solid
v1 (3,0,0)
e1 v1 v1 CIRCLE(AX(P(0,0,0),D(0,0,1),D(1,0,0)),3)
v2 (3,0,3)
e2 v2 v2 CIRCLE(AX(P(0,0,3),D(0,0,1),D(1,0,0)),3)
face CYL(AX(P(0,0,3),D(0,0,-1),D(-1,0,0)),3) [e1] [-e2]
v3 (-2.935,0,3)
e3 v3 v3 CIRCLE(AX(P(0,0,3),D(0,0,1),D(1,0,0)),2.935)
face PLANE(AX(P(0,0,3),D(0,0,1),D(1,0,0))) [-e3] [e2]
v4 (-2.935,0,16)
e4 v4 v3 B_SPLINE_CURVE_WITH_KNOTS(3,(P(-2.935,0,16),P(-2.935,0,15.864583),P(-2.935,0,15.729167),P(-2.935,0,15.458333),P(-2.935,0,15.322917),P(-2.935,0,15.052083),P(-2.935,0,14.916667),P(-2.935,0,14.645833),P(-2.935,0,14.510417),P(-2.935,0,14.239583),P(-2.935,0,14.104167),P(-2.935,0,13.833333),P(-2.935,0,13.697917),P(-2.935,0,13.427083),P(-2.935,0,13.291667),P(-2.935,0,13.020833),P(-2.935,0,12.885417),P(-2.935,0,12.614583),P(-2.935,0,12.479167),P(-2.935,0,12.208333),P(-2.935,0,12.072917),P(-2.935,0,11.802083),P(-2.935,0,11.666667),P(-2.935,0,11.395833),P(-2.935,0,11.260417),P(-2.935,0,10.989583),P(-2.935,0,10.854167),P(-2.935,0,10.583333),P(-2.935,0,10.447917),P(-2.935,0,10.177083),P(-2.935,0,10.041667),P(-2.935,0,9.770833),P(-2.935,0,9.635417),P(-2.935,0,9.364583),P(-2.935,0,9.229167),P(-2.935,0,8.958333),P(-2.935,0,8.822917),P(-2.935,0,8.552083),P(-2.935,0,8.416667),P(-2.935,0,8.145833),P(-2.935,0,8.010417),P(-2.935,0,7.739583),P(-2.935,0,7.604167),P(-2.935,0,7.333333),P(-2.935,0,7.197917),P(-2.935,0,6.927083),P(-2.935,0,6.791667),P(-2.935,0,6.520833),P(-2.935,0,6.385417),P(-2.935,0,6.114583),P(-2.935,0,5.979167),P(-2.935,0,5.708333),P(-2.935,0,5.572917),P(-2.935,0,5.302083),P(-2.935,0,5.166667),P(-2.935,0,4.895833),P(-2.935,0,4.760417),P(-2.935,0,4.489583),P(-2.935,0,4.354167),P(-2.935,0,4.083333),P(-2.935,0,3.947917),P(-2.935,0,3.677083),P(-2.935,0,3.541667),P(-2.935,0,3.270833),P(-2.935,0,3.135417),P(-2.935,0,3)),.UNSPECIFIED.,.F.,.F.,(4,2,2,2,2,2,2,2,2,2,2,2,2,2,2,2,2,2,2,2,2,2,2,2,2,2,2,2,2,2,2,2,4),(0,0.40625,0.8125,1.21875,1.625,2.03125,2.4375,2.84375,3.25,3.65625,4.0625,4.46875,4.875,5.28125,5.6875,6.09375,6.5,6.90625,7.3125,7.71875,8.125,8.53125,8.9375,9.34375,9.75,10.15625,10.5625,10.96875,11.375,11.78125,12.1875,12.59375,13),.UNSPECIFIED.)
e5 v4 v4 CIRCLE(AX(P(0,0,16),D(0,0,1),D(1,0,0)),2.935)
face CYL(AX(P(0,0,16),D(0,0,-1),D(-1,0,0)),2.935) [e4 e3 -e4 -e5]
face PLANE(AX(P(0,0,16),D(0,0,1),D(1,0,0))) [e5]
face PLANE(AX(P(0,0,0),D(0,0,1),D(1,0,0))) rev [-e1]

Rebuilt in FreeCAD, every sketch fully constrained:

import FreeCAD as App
import Part
import Sketcher
Q = App.Units.Quantity

doc = App.newDocument("Part")
body = doc.addObject("PartDesign::Body", "Body")

# Sketch on XY plane
sketch1 = doc.addObject("Sketcher::SketchObject", "Sketch")
body.addObject(sketch1)
sketch1.AttachmentSupport = (doc.XY_Plane, [""])
sketch1.MapMode = "FlatFace"
sketch1.addGeometry(Part.Circle(App.Vector(0, 0, 0), App.Vector(0, 0, 1), 3), False)
sketch1.addConstraint([
    Sketcher.Constraint("Coincident", 0, 3, -1, 1),
    Sketcher.Constraint("Diameter", 0, Q("6 mm")),
])
pad1 = doc.addObject("PartDesign::Pad", "Pad")
body.addObject(pad1)
pad1.Profile = sketch1
pad1.Length = 3

# Sketch on XY plane
sketch2 = doc.addObject("Sketcher::SketchObject", "Sketch001")
body.addObject(sketch2)
sketch2.AttachmentSupport = (doc.XY_Plane, [""])
sketch2.MapMode = "FlatFace"
sketch2.AttachmentOffset = App.Placement(App.Vector(0, 0, 3), App.Rotation())
sketch2.addGeometry(Part.Circle(App.Vector(0, 0, 0), App.Vector(0, 0, 1), 2.9), False)
sketch2.addConstraint([
    Sketcher.Constraint("Coincident", 0, 3, -1, 1),
    Sketcher.Constraint("Diameter", 0, Q("5.87 mm")),
])
pad2 = doc.addObject("PartDesign::Pad", "Pad001")
body.addObject(pad2)
pad2.Profile = sketch2
pad2.Length = 13

doc.recompute()
